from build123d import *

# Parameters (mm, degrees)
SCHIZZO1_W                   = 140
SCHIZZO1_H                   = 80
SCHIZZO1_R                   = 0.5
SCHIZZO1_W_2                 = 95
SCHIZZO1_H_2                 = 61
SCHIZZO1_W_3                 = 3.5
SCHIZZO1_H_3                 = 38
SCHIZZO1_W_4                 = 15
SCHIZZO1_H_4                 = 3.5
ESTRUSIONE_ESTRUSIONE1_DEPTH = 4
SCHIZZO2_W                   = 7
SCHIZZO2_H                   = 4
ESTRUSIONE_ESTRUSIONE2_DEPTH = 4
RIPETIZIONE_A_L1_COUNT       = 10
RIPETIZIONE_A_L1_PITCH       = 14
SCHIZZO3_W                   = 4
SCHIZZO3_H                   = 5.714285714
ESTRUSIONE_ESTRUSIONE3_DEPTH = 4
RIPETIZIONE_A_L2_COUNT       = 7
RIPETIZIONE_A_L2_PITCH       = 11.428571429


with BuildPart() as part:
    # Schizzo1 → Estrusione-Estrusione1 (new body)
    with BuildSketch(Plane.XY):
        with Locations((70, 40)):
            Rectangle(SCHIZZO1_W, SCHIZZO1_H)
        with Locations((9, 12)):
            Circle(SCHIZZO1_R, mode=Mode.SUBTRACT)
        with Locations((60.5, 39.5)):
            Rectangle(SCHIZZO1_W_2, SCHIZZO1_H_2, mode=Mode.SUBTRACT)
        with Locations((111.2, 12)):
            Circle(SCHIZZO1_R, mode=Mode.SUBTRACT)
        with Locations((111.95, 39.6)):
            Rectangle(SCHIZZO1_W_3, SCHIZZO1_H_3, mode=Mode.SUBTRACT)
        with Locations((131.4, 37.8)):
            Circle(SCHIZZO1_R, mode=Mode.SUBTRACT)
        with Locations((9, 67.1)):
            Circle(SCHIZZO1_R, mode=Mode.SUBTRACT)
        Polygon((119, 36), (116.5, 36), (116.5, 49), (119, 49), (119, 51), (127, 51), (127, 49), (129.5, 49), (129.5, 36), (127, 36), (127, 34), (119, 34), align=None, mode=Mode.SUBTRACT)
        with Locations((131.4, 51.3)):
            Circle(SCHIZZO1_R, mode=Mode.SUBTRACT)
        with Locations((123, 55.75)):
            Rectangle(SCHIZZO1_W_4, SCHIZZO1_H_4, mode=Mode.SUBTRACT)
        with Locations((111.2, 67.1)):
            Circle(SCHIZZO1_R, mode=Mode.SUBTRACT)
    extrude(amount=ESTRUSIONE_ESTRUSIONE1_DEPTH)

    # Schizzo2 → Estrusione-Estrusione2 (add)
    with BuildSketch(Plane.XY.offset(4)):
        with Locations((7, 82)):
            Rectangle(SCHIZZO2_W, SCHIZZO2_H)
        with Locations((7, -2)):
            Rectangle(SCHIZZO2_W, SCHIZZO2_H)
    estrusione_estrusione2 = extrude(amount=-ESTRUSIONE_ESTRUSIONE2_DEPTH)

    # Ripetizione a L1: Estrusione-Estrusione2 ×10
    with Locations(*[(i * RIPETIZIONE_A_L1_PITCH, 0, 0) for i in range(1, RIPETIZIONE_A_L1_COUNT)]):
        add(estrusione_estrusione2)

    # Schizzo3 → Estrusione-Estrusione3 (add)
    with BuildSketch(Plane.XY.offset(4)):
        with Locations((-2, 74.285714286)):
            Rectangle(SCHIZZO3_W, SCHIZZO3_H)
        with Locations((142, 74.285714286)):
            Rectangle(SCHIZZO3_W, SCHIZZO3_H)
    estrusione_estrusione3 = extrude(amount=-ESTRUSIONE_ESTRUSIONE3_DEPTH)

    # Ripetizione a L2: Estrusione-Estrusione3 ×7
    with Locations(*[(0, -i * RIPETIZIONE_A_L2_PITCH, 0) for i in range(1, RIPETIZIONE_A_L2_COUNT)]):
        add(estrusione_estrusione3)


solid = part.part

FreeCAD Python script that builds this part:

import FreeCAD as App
import Part
import Sketcher
from FreeCAD import Vector


def add_polygon(sketch, points):
    """Adds a closed chain of lines whose ends are joined by coincident constraints."""
    first, n = sketch.GeometryCount, len(points)
    for a, b in zip(points, points[1:] + points[:1]):
        sketch.addGeometry(Part.LineSegment(App.Vector(*a, 0), App.Vector(*b, 0)), False)
    for i in range(n):
        sketch.addConstraint(Sketcher.Constraint("Coincident", first + i, 2, first + (i + 1) % n, 1))

doc = App.newDocument("Part")
body = doc.addObject("PartDesign::Body", "Body")

sketch1 = body.newObject("Sketcher::SketchObject", "Sketch")
sketch1.AttachmentSupport = (doc.getObject("XY_Plane"), [""])
sketch1.MapMode = "FlatFace"
add_polygon(sketch1, [(0, 80), (0, 0), (140, 0), (140, 80)])
sketch1.addGeometry(Part.Circle(Vector(9, 12, 0), Vector(0, 0, 1), 0.5), False)
sketch1.addGeometry(Part.Circle(Vector(111.2, 12, 0), Vector(0, 0, 1), 0.5), False)
sketch1.addGeometry(Part.Circle(Vector(131.4, 37.8, 0), Vector(0, 0, 1), 0.5), False)
add_polygon(sketch1, [(108, 9), (13, 9), (13, 70), (108, 70)])
sketch1.addGeometry(Part.Circle(Vector(9, 67.1, 0), Vector(0, 0, 1), 0.5), False)
add_polygon(sketch1, [(113.7, 20.6), (110.2, 20.6), (110.2, 58.6), (113.7, 58.6)])
add_polygon(sketch1, [(119, 34), (119, 36), (116.5, 36), (116.5, 49), (119, 49), (119, 51), (127, 51), (127, 49), (129.5, 49), (129.5, 36), (127, 36), (127, 34)])
sketch1.addGeometry(Part.Circle(Vector(131.4, 51.3, 0), Vector(0, 0, 1), 0.5), False)
add_polygon(sketch1, [(130.5, 54), (115.5, 54), (115.5, 57.5), (130.5, 57.5)])
sketch1.addGeometry(Part.Circle(Vector(111.2, 67.1, 0), Vector(0, 0, 1), 0.5), False)
sketch1.addConstraint([
    Sketcher.Constraint("Vertical", 0),
    Sketcher.Constraint("Horizontal", 1),
    Sketcher.Constraint("Vertical", 2),
    Sketcher.Constraint("Horizontal", 3),
    Sketcher.Constraint("Horizontal", 7),
    Sketcher.Constraint("Vertical", 8),
    Sketcher.Constraint("Horizontal", 9),
    Sketcher.Constraint("Vertical", 10),
    Sketcher.Constraint("Horizontal", 12),
    Sketcher.Constraint("Vertical", 13),
    Sketcher.Constraint("Horizontal", 14),
    Sketcher.Constraint("Vertical", 15),
    Sketcher.Constraint("Vertical", 16),
    Sketcher.Constraint("Horizontal", 17),
    Sketcher.Constraint("Vertical", 18),
    Sketcher.Constraint("Horizontal", 19),
    Sketcher.Constraint("Vertical", 20),
    Sketcher.Constraint("Horizontal", 21),
    Sketcher.Constraint("Vertical", 22),
    Sketcher.Constraint("Horizontal", 23),
    Sketcher.Constraint("Vertical", 24),
    Sketcher.Constraint("Horizontal", 25),
    Sketcher.Constraint("Vertical", 26),
    Sketcher.Constraint("Horizontal", 27),
    Sketcher.Constraint("Horizontal", 29),
    Sketcher.Constraint("Vertical", 30),
    Sketcher.Constraint("Horizontal", 31),
    Sketcher.Constraint("Vertical", 32),
    Sketcher.Constraint("Coincident", 0, 2, -1, 1),
    Sketcher.Constraint("Equal", 4, 5),
    Sketcher.Constraint("Equal", 5, 6),
    Sketcher.Constraint("Equal", 6, 11),
    Sketcher.Constraint("Equal", 11, 28),
    Sketcher.Constraint("Equal", 28, 33),
    Sketcher.Constraint("Horizontal", 4, 3, 5, 3),
    Sketcher.Constraint("Horizontal", 11, 3, 33, 3),
    Sketcher.Constraint("Horizontal", 19, 2, 22, 2),
    Sketcher.Constraint("Horizontal", 17, 2, 24, 2),
    Sketcher.Constraint("Vertical", 4, 3, 11, 3),
    Sketcher.Constraint("Vertical", 6, 3, 28, 3),
    Sketcher.Constraint("Vertical", 5, 3, 33, 3),
    Sketcher.Constraint("Vertical", 16, 2, 19, 2),
    Sketcher.Constraint("Vertical", 22, 2, 25, 2),
    Sketcher.Constraint("Equal", 19, 23),
    Sketcher.Constraint("Equal", 16, 20),
    Sketcher.Constraint("Equal", 14, 30),
    Sketcher.Constraint("Diameter", 4, 1.0),
    Sketcher.Constraint("DistanceX", 1, 1, 1, 2, 140.0),
    Sketcher.Constraint("DistanceX", 7, 2, 7, 1, 95.0),
    Sketcher.Constraint("DistanceX", 21, 1, 21, 2, 8.0),
    Sketcher.Constraint("DistanceX", 29, 2, 29, 1, 15.0),
    Sketcher.Constraint("DistanceY", 0, 2, 0, 1, 80.0),
    Sketcher.Constraint("DistanceY", 8, 1, 8, 2, 61.0),
    Sketcher.Constraint("DistanceY", 13, 1, 13, 2, 38.0),
    Sketcher.Constraint("DistanceY", 16, 1, 16, 2, 2.0),
    Sketcher.Constraint("DistanceY", 18, 1, 18, 2, 13.0),
    Sketcher.Constraint("DistanceX", 12, 2, 12, 1, 3.5),
    Sketcher.Constraint("DistanceX", 17, 2, 17, 1, 2.5),
    Sketcher.Constraint("DistanceX", -1, 1, 4, 3, 9.0),
    Sketcher.Constraint("DistanceY", -1, 1, 4, 3, 12.0),
    Sketcher.Constraint("DistanceX", -1, 1, 7, 2, 13.0),
    Sketcher.Constraint("DistanceY", -1, 1, 7, 2, 9.0),
    Sketcher.Constraint("DistanceX", -1, 1, 16, 2, 119.0),
    Sketcher.Constraint("DistanceY", -1, 1, 16, 2, 36.0),
    Sketcher.Constraint("DistanceY", -1, 1, 29, 2, 54.0),
    Sketcher.Constraint("DistanceX", 12, 2, 5, 3, 1.0),
    Sketcher.Constraint("DistanceX", 29, 2, 18, 2, 1.0),
    Sketcher.Constraint("DistanceX", -1, 1, 5, 3, 111.2),
    Sketcher.Constraint("DistanceX", -1, 1, 6, 3, 131.4),
    Sketcher.Constraint("DistanceY", -1, 1, 6, 3, 37.8),
    Sketcher.Constraint("DistanceY", -1, 1, 11, 3, 67.1),
    Sketcher.Constraint("DistanceY", -1, 1, 28, 3, 51.3),
    Sketcher.Constraint("DistanceY", -1, 1, 12, 2, 20.6),
])
pad1 = body.newObject("PartDesign::Pad", "Pad")
pad1.Profile = sketch1
pad1.Length = 4

sketch2 = body.newObject("Sketcher::SketchObject", "Sketch001")
sketch2.AttachmentSupport = (doc.getObject("XY_Plane"), [""])
sketch2.MapMode = "FlatFace"
sketch2.AttachmentOffset = App.Placement(Vector(0, 0, 4), App.Rotation())
add_polygon(sketch2, [(3.5, 84), (3.5, 80), (10.5, 80), (10.5, 84)])
add_polygon(sketch2, [(3.5, 0), (3.5, -4), (10.5, -4), (10.5, 0)])
sketch2.addConstraint([
    Sketcher.Constraint("Vertical", 0),
    Sketcher.Constraint("Horizontal", 1),
    Sketcher.Constraint("Vertical", 2),
    Sketcher.Constraint("Horizontal", 3),
    Sketcher.Constraint("Vertical", 4),
    Sketcher.Constraint("Horizontal", 5),
    Sketcher.Constraint("Vertical", 6),
    Sketcher.Constraint("Horizontal", 7),
    Sketcher.Constraint("PointOnObject", 6, 2, -1),
    Sketcher.Constraint("Vertical", 3, 2, 4, 2),
    Sketcher.Constraint("Vertical", 2, 2, 5, 2),
    Sketcher.Constraint("Equal", 2, 4),
    Sketcher.Constraint("DistanceX", 1, 1, 1, 2, 7.0),
    Sketcher.Constraint("DistanceY", 0, 2, 0, 1, 4.0),
    Sketcher.Constraint("DistanceY", -1, 1, 0, 2, 80.0),
    Sketcher.Constraint("DistanceX", -1, 1, 0, 2, 3.5),
])
pad2 = body.newObject("PartDesign::Pad", "Pad001")
pad2.Profile = sketch2
pad2.Length = 4
pad2.Reversed = True
doc.recompute()

linearpattern = body.newObject("PartDesign::LinearPattern", "LinearPattern")
linearpattern.Originals = [pad2]
linearpattern.Direction = (doc.getObject("X_Axis"), [""])
linearpattern.Mode = "offset"
linearpattern.Offset = 14
linearpattern.Occurrences = 10
body.Tip = linearpattern

sketch3 = body.newObject("Sketcher::SketchObject", "Sketch002")
sketch3.AttachmentSupport = (doc.getObject("XY_Plane"), [""])
sketch3.MapMode = "FlatFace"
sketch3.AttachmentOffset = App.Placement(Vector(0, 0, 4), App.Rotation())
add_polygon(sketch3, [(-4, 77.1), (-4, 71.4), (0, 71.4), (0, 77.1)])
add_polygon(sketch3, [(140, 77.1), (140, 71.4), (144, 71.4), (144, 77.1)])
sketch3.addConstraint([
    Sketcher.Constraint("Vertical", 0),
    Sketcher.Constraint("Horizontal", 1),
    Sketcher.Constraint("Vertical", 2),
    Sketcher.Constraint("Horizontal", 3),
    Sketcher.Constraint("Vertical", 4),
    Sketcher.Constraint("Horizontal", 5),
    Sketcher.Constraint("Vertical", 6),
    Sketcher.Constraint("Horizontal", 7),
    Sketcher.Constraint("PointOnObject", 1, 2, -2),
    Sketcher.Constraint("Horizontal", 1, 2, 4, 2),
    Sketcher.Constraint("Horizontal", 3, 2, 6, 2),
    Sketcher.Constraint("Equal", 3, 5),
    Sketcher.Constraint("DistanceX", 1, 1, 1, 2, 4.0),
    Sketcher.Constraint("DistanceX", -1, 1, 4, 2, 140.0),
    Sketcher.Constraint("DistanceY", 0, 2, 0, 1, 5.714286),
    Sketcher.Constraint("DistanceY", -1, 1, 0, 2, 71.428571),
])
pad3 = body.newObject("PartDesign::Pad", "Pad002")
pad3.Profile = sketch3
pad3.Length = 4
pad3.Reversed = True
doc.recompute()

linearpattern2 = body.newObject("PartDesign::LinearPattern", "LinearPattern001")
linearpattern2.Originals = [pad3]
linearpattern2.Direction = (doc.getObject("Y_Axis"), [""])
linearpattern2.Mode = "offset"
linearpattern2.Offset = 11.428571
linearpattern2.Occurrences = 7
linearpattern2.Reversed = True
body.Tip = linearpattern2

doc.recompute()
